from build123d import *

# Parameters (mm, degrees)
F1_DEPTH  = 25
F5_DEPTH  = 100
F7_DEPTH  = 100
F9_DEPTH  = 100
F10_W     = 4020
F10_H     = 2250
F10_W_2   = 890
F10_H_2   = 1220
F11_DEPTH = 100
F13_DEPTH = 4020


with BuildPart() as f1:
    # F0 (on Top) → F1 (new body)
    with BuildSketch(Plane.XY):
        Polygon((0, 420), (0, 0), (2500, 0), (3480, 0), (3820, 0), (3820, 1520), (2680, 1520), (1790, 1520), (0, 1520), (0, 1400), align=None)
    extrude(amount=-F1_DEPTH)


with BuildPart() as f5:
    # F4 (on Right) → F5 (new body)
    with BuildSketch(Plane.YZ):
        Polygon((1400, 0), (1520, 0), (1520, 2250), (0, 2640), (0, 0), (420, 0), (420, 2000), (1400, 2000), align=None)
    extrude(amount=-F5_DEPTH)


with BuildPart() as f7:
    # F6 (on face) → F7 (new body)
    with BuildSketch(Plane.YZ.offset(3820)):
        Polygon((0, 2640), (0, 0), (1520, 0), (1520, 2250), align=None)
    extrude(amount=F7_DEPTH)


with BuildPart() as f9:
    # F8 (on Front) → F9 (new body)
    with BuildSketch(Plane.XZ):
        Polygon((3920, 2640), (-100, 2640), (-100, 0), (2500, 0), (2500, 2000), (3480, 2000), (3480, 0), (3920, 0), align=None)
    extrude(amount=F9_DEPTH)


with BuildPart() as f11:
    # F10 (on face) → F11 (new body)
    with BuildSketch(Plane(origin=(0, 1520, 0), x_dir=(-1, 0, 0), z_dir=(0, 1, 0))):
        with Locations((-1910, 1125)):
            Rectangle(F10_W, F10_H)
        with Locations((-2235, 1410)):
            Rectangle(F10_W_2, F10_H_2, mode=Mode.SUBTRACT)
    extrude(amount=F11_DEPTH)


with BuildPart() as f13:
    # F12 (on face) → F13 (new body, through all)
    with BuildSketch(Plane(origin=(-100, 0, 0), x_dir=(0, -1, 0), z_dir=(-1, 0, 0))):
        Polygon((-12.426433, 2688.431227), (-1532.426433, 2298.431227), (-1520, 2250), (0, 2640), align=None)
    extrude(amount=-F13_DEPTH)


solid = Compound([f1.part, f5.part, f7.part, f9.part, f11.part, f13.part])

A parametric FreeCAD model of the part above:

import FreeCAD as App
import Part
import Sketcher
from FreeCAD import Vector

doc = App.newDocument("Part")
body = doc.addObject("PartDesign::Body", "Body")

sketch1 = body.newObject("Sketcher::SketchObject", "Sketch")
sketch1.AttachmentSupport = (doc.getObject("XY_Plane"), [""])
sketch1.MapMode = "FlatFace"
sketch1.addGeometry([
    Part.LineSegment(Vector(0, 0, 0), Vector(3820, 0, 0)),
    Part.LineSegment(Vector(3820, 0, 0), Vector(3820, 1520, 0)),
    Part.LineSegment(Vector(3820, 1520, 0), Vector(0, 1520, 0)),
    Part.LineSegment(Vector(0, 1520, 0), Vector(0, 0, 0)),
], False)
sketch1.addConstraint([
    Sketcher.Constraint("Coincident", 0, 2, 1, 1),
    Sketcher.Constraint("Coincident", 1, 2, 2, 1),
    Sketcher.Constraint("Coincident", 2, 2, 3, 1),
    Sketcher.Constraint("Coincident", 3, 2, 0, 1),
    Sketcher.Constraint("Horizontal", 0),
    Sketcher.Constraint("Vertical", 1),
    Sketcher.Constraint("Horizontal", 2),
    Sketcher.Constraint("Vertical", 3),
    Sketcher.Constraint("Coincident", 3, 2, -1, 1),
    Sketcher.Constraint("DistanceX", 0, 1, 0, 2, 3820.0),
    Sketcher.Constraint("DistanceY", 1, 1, 1, 2, 1520.0),
])
pad1 = body.newObject("PartDesign::Pad", "Pad")
pad1.Profile = sketch1
pad1.Length = 25
pad1.Reversed = True
body2 = doc.addObject("PartDesign::Body", "Body001")

sketch2 = body2.newObject("Sketcher::SketchObject", "Sketch001")
sketch2.AttachmentSupport = (doc.getObject("YZ_Plane001"), [""])
sketch2.MapMode = "FlatFace"
sketch2.addGeometry([
    Part.LineSegment(Vector(1400, 0, 0), Vector(1520, 0, 0)),
    Part.LineSegment(Vector(1520, 0, 0), Vector(1520, 2250, 0)),
    Part.LineSegment(Vector(1520, 2250, 0), Vector(0, 2640, 0)),
    Part.LineSegment(Vector(0, 2640, 0), Vector(0, 0, 0)),
    Part.LineSegment(Vector(0, 0, 0), Vector(420, 0, 0)),
    Part.LineSegment(Vector(420, 0, 0), Vector(420, 2000, 0)),
    Part.LineSegment(Vector(420, 2000, 0), Vector(1400, 2000, 0)),
    Part.LineSegment(Vector(1400, 2000, 0), Vector(1400, 0, 0)),
], False)
sketch2.addConstraint([
    Sketcher.Constraint("Coincident", 0, 2, 1, 1),
    Sketcher.Constraint("Coincident", 1, 2, 2, 1),
    Sketcher.Constraint("Coincident", 2, 2, 3, 1),
    Sketcher.Constraint("Coincident", 3, 2, 4, 1),
    Sketcher.Constraint("Coincident", 4, 2, 5, 1),
    Sketcher.Constraint("Coincident", 5, 2, 6, 1),
    Sketcher.Constraint("Coincident", 6, 2, 7, 1),
    Sketcher.Constraint("Coincident", 7, 2, 0, 1),
    Sketcher.Constraint("Horizontal", 0),
    Sketcher.Constraint("Vertical", 1),
    Sketcher.Constraint("Vertical", 3),
    Sketcher.Constraint("Horizontal", 4),
    Sketcher.Constraint("Vertical", 5),
    Sketcher.Constraint("Horizontal", 6),
    Sketcher.Constraint("Vertical", 7),
    Sketcher.Constraint("Coincident", 3, 2, -1, 1),
    Sketcher.Constraint("PointOnObject", 0, 2, -1),
    Sketcher.Constraint("DistanceX", 0, 1, 0, 2, 120.0),
    Sketcher.Constraint("DistanceX", 4, 1, 4, 2, 420.0),
    Sketcher.Constraint("DistanceX", 6, 1, 6, 2, 980.0),
    Sketcher.Constraint("DistanceY", 1, 1, 1, 2, 2250.0),
    Sketcher.Constraint("DistanceY", 3, 2, 3, 1, 2640.0),
    Sketcher.Constraint("DistanceY", 5, 1, 5, 2, 2000.0),
])
pad2 = body2.newObject("PartDesign::Pad", "Pad001")
pad2.Profile = sketch2
pad2.Length = 100
pad2.Reversed = True
body3 = doc.addObject("PartDesign::Body", "Body002")

sketch3 = body3.newObject("Sketcher::SketchObject", "Sketch002")
sketch3.AttachmentSupport = (doc.getObject("YZ_Plane002"), [""])
sketch3.MapMode = "FlatFace"
sketch3.AttachmentOffset = App.Placement(Vector(0, 0, 3820), App.Rotation())
sketch3.addGeometry([
    Part.LineSegment(Vector(0, 2640, 0), Vector(0, 0, 0)),
    Part.LineSegment(Vector(0, 0, 0), Vector(1520, 0, 0)),
    Part.LineSegment(Vector(1520, 0, 0), Vector(1520, 2250, 0)),
    Part.LineSegment(Vector(1520, 2250, 0), Vector(0, 2640, 0)),
], False)
sketch3.addConstraint([
    Sketcher.Constraint("Coincident", 0, 2, 1, 1),
    Sketcher.Constraint("Coincident", 1, 2, 2, 1),
    Sketcher.Constraint("Coincident", 2, 2, 3, 1),
    Sketcher.Constraint("Coincident", 3, 2, 0, 1),
    Sketcher.Constraint("Vertical", 0),
    Sketcher.Constraint("Horizontal", 1),
    Sketcher.Constraint("Vertical", 2),
    Sketcher.Constraint("Coincident", 0, 2, -1, 1),
    Sketcher.Constraint("DistanceX", 1, 1, 1, 2, 1520.0),
    Sketcher.Constraint("DistanceY", 0, 2, 0, 1, 2640.0),
    Sketcher.Constraint("DistanceY", 2, 1, 2, 2, 2250.0),
])
pad3 = body3.newObject("PartDesign::Pad", "Pad002")
pad3.Profile = sketch3
pad3.Length = 100
body4 = doc.addObject("PartDesign::Body", "Body003")

sketch4 = body4.newObject("Sketcher::SketchObject", "Sketch003")
sketch4.AttachmentSupport = (doc.getObject("XZ_Plane003"), [""])
sketch4.MapMode = "FlatFace"
sketch4.addGeometry([
    Part.LineSegment(Vector(3920, 2640, 0), Vector(-100, 2640, 0)),
    Part.LineSegment(Vector(-100, 2640, 0), Vector(-100, 0, 0)),
    Part.LineSegment(Vector(-100, 0, 0), Vector(2500, 0, 0)),
    Part.LineSegment(Vector(2500, 0, 0), Vector(2500, 2000, 0)),
    Part.LineSegment(Vector(2500, 2000, 0), Vector(3480, 2000, 0)),
    Part.LineSegment(Vector(3480, 2000, 0), Vector(3480, 0, 0)),
    Part.LineSegment(Vector(3480, 0, 0), Vector(3920, 0, 0)),
    Part.LineSegment(Vector(3920, 0, 0), Vector(3920, 2640, 0)),
], False)
sketch4.addConstraint([
    Sketcher.Constraint("Coincident", 0, 2, 1, 1),
    Sketcher.Constraint("Coincident", 1, 2, 2, 1),
    Sketcher.Constraint("Coincident", 2, 2, 3, 1),
    Sketcher.Constraint("Coincident", 3, 2, 4, 1),
    Sketcher.Constraint("Coincident", 4, 2, 5, 1),
    Sketcher.Constraint("Coincident", 5, 2, 6, 1),
    Sketcher.Constraint("Coincident", 6, 2, 7, 1),
    Sketcher.Constraint("Coincident", 7, 2, 0, 1),
    Sketcher.Constraint("Horizontal", 0),
    Sketcher.Constraint("Vertical", 1),
    Sketcher.Constraint("Horizontal", 2),
    Sketcher.Constraint("Vertical", 3),
    Sketcher.Constraint("Horizontal", 4),
    Sketcher.Constraint("Vertical", 5),
    Sketcher.Constraint("Horizontal", 6),
    Sketcher.Constraint("Vertical", 7),
    Sketcher.Constraint("PointOnObject", 1, 2, -1),
    Sketcher.Constraint("PointOnObject", 5, 2, -1),
    Sketcher.Constraint("DistanceX", 0, 2, 0, 1, 4020.0),
    Sketcher.Constraint("DistanceX", 2, 1, 2, 2, 2600.0),
    Sketcher.Constraint("DistanceX", 4, 1, 4, 2, 980.0),
    Sketcher.Constraint("DistanceY", 1, 2, 1, 1, 2640.0),
    Sketcher.Constraint("DistanceY", 3, 1, 3, 2, 2000.0),
    Sketcher.Constraint("DistanceX", 0, 2, -1, 1, 100.0),
])
pad4 = body4.newObject("PartDesign::Pad", "Pad003")
pad4.Profile = sketch4
pad4.Length = 100
body5 = doc.addObject("PartDesign::Body", "Body004")

sketch5 = body5.newObject("Sketcher::SketchObject", "Sketch004")
sketch5.AttachmentSupport = (doc.getObject("XZ_Plane004"), [""])
sketch5.MapMode = "FlatFace"
sketch5.AttachmentOffset = App.Placement(Vector(0, 0, -1520), App.Rotation())
sketch5.addGeometry([
    Part.LineSegment(Vector(3920, 2250, 0), Vector(3920, 0, 0)),
    Part.LineSegment(Vector(3920, 0, 0), Vector(-100, 0, 0)),
    Part.LineSegment(Vector(-100, 0, 0), Vector(-100, 2250, 0)),
    Part.LineSegment(Vector(-100, 2250, 0), Vector(3920, 2250, 0)),
    Part.LineSegment(Vector(1790, 800, 0), Vector(2680, 800, 0)),
    Part.LineSegment(Vector(2680, 800, 0), Vector(2680, 2020, 0)),
    Part.LineSegment(Vector(2680, 2020, 0), Vector(1790, 2020, 0)),
    Part.LineSegment(Vector(1790, 2020, 0), Vector(1790, 800, 0)),
], False)
sketch5.addConstraint([
    Sketcher.Constraint("Coincident", 0, 2, 1, 1),
    Sketcher.Constraint("Coincident", 1, 2, 2, 1),
    Sketcher.Constraint("Coincident", 2, 2, 3, 1),
    Sketcher.Constraint("Coincident", 3, 2, 0, 1),
    Sketcher.Constraint("Coincident", 4, 2, 5, 1),
    Sketcher.Constraint("Coincident", 5, 2, 6, 1),
    Sketcher.Constraint("Coincident", 6, 2, 7, 1),
    Sketcher.Constraint("Coincident", 7, 2, 4, 1),
    Sketcher.Constraint("Vertical", 0),
    Sketcher.Constraint("Horizontal", 1),
    Sketcher.Constraint("Vertical", 2),
    Sketcher.Constraint("Horizontal", 3),
    Sketcher.Constraint("Horizontal", 4),
    Sketcher.Constraint("Vertical", 5),
    Sketcher.Constraint("Horizontal", 6),
    Sketcher.Constraint("Vertical", 7),
    Sketcher.Constraint("PointOnObject", 0, 2, -1),
    Sketcher.Constraint("DistanceX", 1, 2, 1, 1, 4020.0),
    Sketcher.Constraint("DistanceX", 4, 1, 4, 2, 890.0),
    Sketcher.Constraint("DistanceY", 0, 2, 0, 1, 2250.0),
    Sketcher.Constraint("DistanceY", 5, 1, 5, 2, 1220.0),
    Sketcher.Constraint("DistanceX", -1, 1, 0, 2, 3920.0),
    Sketcher.Constraint("DistanceX", -1, 1, 4, 2, 2680.0),
    Sketcher.Constraint("DistanceY", -1, 1, 4, 2, 800.0),
])
pad5 = body5.newObject("PartDesign::Pad", "Pad004")
pad5.Profile = sketch5
pad5.Length = 100
pad5.Reversed = True
body6 = doc.addObject("PartDesign::Body", "Body005")

sketch6 = body6.newObject("Sketcher::SketchObject", "Sketch005")
sketch6.AttachmentSupport = (doc.getObject("YZ_Plane005"), [""])
sketch6.MapMode = "FlatFace"
sketch6.AttachmentOffset = App.Placement(Vector(0, 0, -100), App.Rotation())
sketch6.addGeometry([
    Part.LineSegment(Vector(12, 2688, 0), Vector(1532, 2298, 0)),
    Part.LineSegment(Vector(1532, 2298, 0), Vector(1520, 2250, 0)),
    Part.LineSegment(Vector(1520, 2250, 0), Vector(0, 2640, 0)),
    Part.LineSegment(Vector(0, 2640, 0), Vector(12, 2688, 0)),
], False)
sketch6.addConstraint([
    Sketcher.Constraint("Coincident", 0, 2, 1, 1),
    Sketcher.Constraint("Coincident", 1, 2, 2, 1),
    Sketcher.Constraint("Coincident", 2, 2, 3, 1),
    Sketcher.Constraint("Coincident", 3, 2, 0, 1),
    Sketcher.Constraint("PointOnObject", 2, 2, -2),
    Sketcher.Constraint("Perpendicular", 0, 1),
    Sketcher.Constraint("Perpendicular", 1, 2),
    Sketcher.Constraint("Perpendicular", 2, 3),
    Sketcher.Constraint("Distance", 1, 50.0),
    Sketcher.Constraint("DistanceX", -1, 1, 1, 2, 1520.0),
    Sketcher.Constraint("DistanceY", -1, 1, 1, 2, 2250.0),
    Sketcher.Constraint("DistanceY", -1, 1, 2, 2, 2640.0),
])
pad6 = body6.newObject("PartDesign::Pad", "Pad005")
pad6.Profile = sketch6
pad6.Length = 4020

doc.recompute()
